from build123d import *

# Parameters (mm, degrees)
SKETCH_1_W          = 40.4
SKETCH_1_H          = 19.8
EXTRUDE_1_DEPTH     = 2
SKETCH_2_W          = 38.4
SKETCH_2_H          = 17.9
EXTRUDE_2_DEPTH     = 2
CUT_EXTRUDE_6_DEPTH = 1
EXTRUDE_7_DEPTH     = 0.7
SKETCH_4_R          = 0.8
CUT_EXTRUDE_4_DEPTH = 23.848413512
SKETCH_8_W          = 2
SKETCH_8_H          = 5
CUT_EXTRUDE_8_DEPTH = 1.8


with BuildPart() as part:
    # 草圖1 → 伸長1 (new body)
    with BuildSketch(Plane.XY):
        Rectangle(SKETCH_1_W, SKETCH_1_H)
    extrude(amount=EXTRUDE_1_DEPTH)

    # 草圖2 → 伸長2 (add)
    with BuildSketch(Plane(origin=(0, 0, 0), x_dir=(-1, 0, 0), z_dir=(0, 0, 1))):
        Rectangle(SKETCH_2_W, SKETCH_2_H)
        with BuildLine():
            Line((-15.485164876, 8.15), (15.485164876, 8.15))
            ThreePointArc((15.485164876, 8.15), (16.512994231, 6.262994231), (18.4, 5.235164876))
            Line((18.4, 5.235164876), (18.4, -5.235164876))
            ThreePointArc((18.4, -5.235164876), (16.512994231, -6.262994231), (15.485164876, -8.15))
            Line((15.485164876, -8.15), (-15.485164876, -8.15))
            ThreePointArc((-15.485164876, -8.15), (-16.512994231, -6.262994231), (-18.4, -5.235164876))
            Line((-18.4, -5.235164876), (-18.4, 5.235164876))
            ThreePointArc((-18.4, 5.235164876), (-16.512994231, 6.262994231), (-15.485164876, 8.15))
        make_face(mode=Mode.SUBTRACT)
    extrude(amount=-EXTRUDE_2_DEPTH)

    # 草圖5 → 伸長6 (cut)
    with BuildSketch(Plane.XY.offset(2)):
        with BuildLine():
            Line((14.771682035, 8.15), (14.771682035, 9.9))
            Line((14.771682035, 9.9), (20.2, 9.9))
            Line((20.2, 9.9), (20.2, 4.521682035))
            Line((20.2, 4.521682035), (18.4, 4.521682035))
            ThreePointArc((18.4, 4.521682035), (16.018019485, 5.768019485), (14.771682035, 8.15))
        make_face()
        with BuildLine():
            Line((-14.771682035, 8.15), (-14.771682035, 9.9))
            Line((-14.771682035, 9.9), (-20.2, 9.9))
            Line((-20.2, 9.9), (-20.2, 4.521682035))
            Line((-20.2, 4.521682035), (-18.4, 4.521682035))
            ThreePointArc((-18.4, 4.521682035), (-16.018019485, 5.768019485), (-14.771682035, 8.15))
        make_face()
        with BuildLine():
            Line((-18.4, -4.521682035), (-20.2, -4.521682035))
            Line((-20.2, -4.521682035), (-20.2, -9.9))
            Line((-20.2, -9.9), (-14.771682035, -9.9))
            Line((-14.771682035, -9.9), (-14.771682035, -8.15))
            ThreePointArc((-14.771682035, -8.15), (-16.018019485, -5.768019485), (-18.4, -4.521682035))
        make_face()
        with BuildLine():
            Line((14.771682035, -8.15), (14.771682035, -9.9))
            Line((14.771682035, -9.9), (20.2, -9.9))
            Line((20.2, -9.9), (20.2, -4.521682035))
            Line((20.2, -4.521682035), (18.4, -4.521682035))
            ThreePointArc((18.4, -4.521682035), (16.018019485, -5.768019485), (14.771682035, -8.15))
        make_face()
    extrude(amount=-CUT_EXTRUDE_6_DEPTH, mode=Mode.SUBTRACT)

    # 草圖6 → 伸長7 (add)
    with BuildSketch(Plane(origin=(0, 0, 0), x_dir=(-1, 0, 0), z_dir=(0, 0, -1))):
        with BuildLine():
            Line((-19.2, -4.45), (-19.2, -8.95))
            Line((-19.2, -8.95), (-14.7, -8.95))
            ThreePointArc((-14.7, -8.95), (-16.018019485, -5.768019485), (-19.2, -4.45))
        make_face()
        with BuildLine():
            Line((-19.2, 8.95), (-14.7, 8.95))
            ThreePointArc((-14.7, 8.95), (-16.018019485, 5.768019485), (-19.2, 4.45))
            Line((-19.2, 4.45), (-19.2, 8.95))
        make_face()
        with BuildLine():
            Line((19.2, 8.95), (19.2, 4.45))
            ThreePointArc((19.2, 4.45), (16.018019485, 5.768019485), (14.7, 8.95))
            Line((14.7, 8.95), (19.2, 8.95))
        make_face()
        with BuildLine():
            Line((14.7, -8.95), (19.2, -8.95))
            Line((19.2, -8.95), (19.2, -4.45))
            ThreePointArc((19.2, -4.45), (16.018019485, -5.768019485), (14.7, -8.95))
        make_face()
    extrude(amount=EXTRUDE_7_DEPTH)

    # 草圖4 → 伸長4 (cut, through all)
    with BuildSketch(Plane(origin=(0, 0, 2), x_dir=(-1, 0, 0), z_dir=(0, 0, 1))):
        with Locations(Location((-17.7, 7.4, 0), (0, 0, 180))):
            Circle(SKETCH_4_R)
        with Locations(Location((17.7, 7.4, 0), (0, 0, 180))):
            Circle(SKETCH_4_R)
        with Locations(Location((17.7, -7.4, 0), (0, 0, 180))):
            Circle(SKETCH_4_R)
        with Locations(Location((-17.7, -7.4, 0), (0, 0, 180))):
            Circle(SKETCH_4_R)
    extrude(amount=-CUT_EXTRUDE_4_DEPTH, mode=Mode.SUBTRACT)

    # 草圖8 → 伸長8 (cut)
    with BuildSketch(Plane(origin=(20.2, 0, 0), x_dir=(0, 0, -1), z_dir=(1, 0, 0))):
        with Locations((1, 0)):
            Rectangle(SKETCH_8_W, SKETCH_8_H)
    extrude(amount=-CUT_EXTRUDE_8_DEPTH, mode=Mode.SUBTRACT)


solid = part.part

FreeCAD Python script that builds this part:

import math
import FreeCAD as App
import Part
import Sketcher
Q = App.Units.Quantity

doc = App.newDocument("Part")
body = doc.addObject("PartDesign::Body", "Body")

# Sketch on XY plane
sketch1 = body.newObject("Sketcher::SketchObject", "Sketch")
sketch1.AttachmentSupport = (doc.getObject("XY_Plane"), [""])
sketch1.MapMode = "FlatFace"
sketch1.addGeometry(Part.LineSegment(App.Vector(-20, 10, 0), App.Vector(-20, -10, 0)), False)
sketch1.addGeometry(Part.LineSegment(App.Vector(-20, -10, 0), App.Vector(20, -10, 0)), False)
sketch1.addGeometry(Part.LineSegment(App.Vector(20, -10, 0), App.Vector(20, 10, 0)), False)
sketch1.addGeometry(Part.LineSegment(App.Vector(20, 10, 0), App.Vector(-20, 10, 0)), False)
sketch1.addConstraint(Sketcher.Constraint("Coincident", 0, 2, 1, 1))
sketch1.addConstraint(Sketcher.Constraint("Coincident", 1, 2, 2, 1))
sketch1.addConstraint(Sketcher.Constraint("Coincident", 2, 2, 3, 1))
sketch1.addConstraint(Sketcher.Constraint("Coincident", 3, 2, 0, 1))
sketch1.addConstraint(Sketcher.Constraint("Vertical", 0))
sketch1.addConstraint(Sketcher.Constraint("Horizontal", 1))
sketch1.addConstraint(Sketcher.Constraint("Vertical", 2))
sketch1.addConstraint(Sketcher.Constraint("Horizontal", 3))
sketch1.addConstraint(Sketcher.Constraint("Symmetric", 0, 2, 2, 2, -1, 1))
sketch1.addConstraint(Sketcher.Constraint("DistanceX", 1, 1, 1, 2, Q("40.4 mm")))
sketch1.addConstraint(Sketcher.Constraint("DistanceY", 0, 2, 0, 1, Q("19.8 mm")))
pad1 = body.newObject("PartDesign::Pad", "Pad")
pad1.Profile = sketch1
pad1.Length = 2

# Sketch on XY plane
sketch2 = body.newObject("Sketcher::SketchObject", "Sketch001")
sketch2.AttachmentSupport = (doc.getObject("XY_Plane"), [""])
sketch2.MapMode = "FlatFace"
sketch2.addGeometry(Part.LineSegment(App.Vector(19.2, -8.9, 0), App.Vector(19.2, 8.9, 0)), False)
sketch2.addGeometry(Part.LineSegment(App.Vector(19.2, 8.9, 0), App.Vector(-19.2, 8.9, 0)), False)
sketch2.addGeometry(Part.LineSegment(App.Vector(-19.2, 8.9, 0), App.Vector(-19.2, -8.9, 0)), False)
sketch2.addGeometry(Part.LineSegment(App.Vector(-19.2, -8.9, 0), App.Vector(19.2, -8.9, 0)), False)
sketch2.addGeometry(Part.ArcOfCircle(Part.Circle(App.Vector(19.2, -8.9, 0), App.Vector(0, 0, 1), 3.8), math.radians(102), math.radians(168)), False)
sketch2.addGeometry(Part.LineSegment(App.Vector(15.5, -8.2, 0), App.Vector(-15.5, -8.2, 0)), False)
sketch2.addGeometry(Part.ArcOfCircle(Part.Circle(App.Vector(-19.2, -8.9, 0), App.Vector(0, 0, 1), 3.8), math.radians(12), math.radians(78)), False)
sketch2.addGeometry(Part.LineSegment(App.Vector(-18.4, -5.2, 0), App.Vector(-18.4, 5.2, 0)), False)
sketch2.addGeometry(Part.ArcOfCircle(Part.Circle(App.Vector(-19.2, 8.9, 0), App.Vector(0, 0, 1), 3.8), math.radians(-78), math.radians(-12)), False)
sketch2.addGeometry(Part.LineSegment(App.Vector(-15.5, 8.2, 0), App.Vector(15.5, 8.2, 0)), False)
sketch2.addGeometry(Part.ArcOfCircle(Part.Circle(App.Vector(19.2, 8.9, 0), App.Vector(0, 0, 1), 3.8), math.radians(-168), math.radians(-102)), False)
sketch2.addGeometry(Part.LineSegment(App.Vector(18.4, 5.2, 0), App.Vector(18.4, -5.2, 0)), False)
sketch2.addConstraint(Sketcher.Constraint("Coincident", 0, 2, 1, 1))
sketch2.addConstraint(Sketcher.Constraint("Coincident", 1, 2, 2, 1))
sketch2.addConstraint(Sketcher.Constraint("Coincident", 2, 2, 3, 1))
sketch2.addConstraint(Sketcher.Constraint("Coincident", 3, 2, 0, 1))
sketch2.addConstraint(Sketcher.Constraint("Coincident", 4, 2, 5, 1))
sketch2.addConstraint(Sketcher.Constraint("Coincident", 5, 2, 6, 1))
sketch2.addConstraint(Sketcher.Constraint("Coincident", 6, 2, 7, 1))
sketch2.addConstraint(Sketcher.Constraint("Coincident", 7, 2, 8, 1))
sketch2.addConstraint(Sketcher.Constraint("Coincident", 8, 2, 9, 1))
sketch2.addConstraint(Sketcher.Constraint("Coincident", 9, 2, 10, 1))
sketch2.addConstraint(Sketcher.Constraint("Coincident", 10, 2, 11, 1))
sketch2.addConstraint(Sketcher.Constraint("Coincident", 11, 2, 4, 1))
sketch2.addConstraint(Sketcher.Constraint("Vertical", 0))
sketch2.addConstraint(Sketcher.Constraint("Horizontal", 1))
sketch2.addConstraint(Sketcher.Constraint("Vertical", 2))
sketch2.addConstraint(Sketcher.Constraint("Horizontal", 3))
sketch2.addConstraint(Sketcher.Constraint("Horizontal", 5))
sketch2.addConstraint(Sketcher.Constraint("Vertical", 7))
sketch2.addConstraint(Sketcher.Constraint("Horizontal", 9))
sketch2.addConstraint(Sketcher.Constraint("Vertical", 11))
sketch2.addConstraint(Sketcher.Constraint("Coincident", 0, 2, 10, 3))
sketch2.addConstraint(Sketcher.Constraint("Coincident", 1, 2, 8, 3))
sketch2.addConstraint(Sketcher.Constraint("Coincident", 2, 2, 6, 3))
sketch2.addConstraint(Sketcher.Constraint("Coincident", 3, 2, 4, 3))
sketch2.addConstraint(Sketcher.Constraint("Equal", 4, 6))
sketch2.addConstraint(Sketcher.Constraint("Equal", 6, 8))
sketch2.addConstraint(Sketcher.Constraint("Equal", 8, 10))
sketch2.addConstraint(Sketcher.Constraint("Symmetric", 4, 3, 8, 3, -1, 1))
sketch2.addConstraint(Sketcher.Constraint("Horizontal", 7, 2, 10, 2))
sketch2.addConstraint(Sketcher.Constraint("Vertical", 5, 2, 8, 2))
sketch2.addConstraint(Sketcher.Constraint("Radius", 4, Q("3.8 mm")))
sketch2.addConstraint(Sketcher.Constraint("DistanceX", 1, 2, 1, 1, Q("38.4 mm")))
sketch2.addConstraint(Sketcher.Constraint("DistanceY", 0, 1, 0, 2, Q("17.9 mm")))
sketch2.addConstraint(Sketcher.Constraint("DistanceX", 6, 2, -1, 1, Q("18.4 mm")))
sketch2.addConstraint(Sketcher.Constraint("DistanceY", 4, 3, 4, 2, Q("0.8 mm")))
pad2 = body.newObject("PartDesign::Pad", "Pad001")
pad2.Profile = sketch2
pad2.Length = 2
pad2.Reversed = True

# Sketch on XY plane
sketch3 = body.newObject("Sketcher::SketchObject", "Sketch002")
sketch3.AttachmentSupport = (doc.getObject("XY_Plane"), [""])
sketch3.MapMode = "FlatFace"
sketch3.AttachmentOffset = App.Placement(App.Vector(0, 0, 2), App.Rotation())
sketch3.addGeometry(Part.LineSegment(App.Vector(14.8, 9.9, 0), App.Vector(14.8, 8.2, 0)), False)
sketch3.addGeometry(Part.ArcOfCircle(Part.Circle(App.Vector(19.2, 9, 0), App.Vector(0, 0, 1), 4.5), math.radians(-170), math.radians(-100)), False)
sketch3.addGeometry(Part.LineSegment(App.Vector(18.4, 4.5, 0), App.Vector(20.2, 4.5, 0)), False)
sketch3.addGeometry(Part.LineSegment(App.Vector(20.2, 4.5, 0), App.Vector(20.2, 9.9, 0)), False)
sketch3.addGeometry(Part.LineSegment(App.Vector(20.2, 9.9, 0), App.Vector(14.8, 9.9, 0)), False)
sketch3.addGeometry(Part.LineSegment(App.Vector(-14.8, 8.2, 0), App.Vector(-14.8, 9.9, 0)), False)
sketch3.addGeometry(Part.LineSegment(App.Vector(-14.8, 9.9, 0), App.Vector(-20.2, 9.9, 0)), False)
sketch3.addGeometry(Part.LineSegment(App.Vector(-20.2, 9.9, 0), App.Vector(-20.2, 4.5, 0)), False)
sketch3.addGeometry(Part.LineSegment(App.Vector(-20.2, 4.5, 0), App.Vector(-18.4, 4.5, 0)), False)
sketch3.addGeometry(Part.ArcOfCircle(Part.Circle(App.Vector(-19.2, 9, 0), App.Vector(0, 0, 1), 4.5), math.radians(-80), math.radians(-10)), False)
sketch3.addGeometry(Part.LineSegment(App.Vector(-18.4, -4.5, 0), App.Vector(-20.2, -4.5, 0)), False)
sketch3.addGeometry(Part.LineSegment(App.Vector(-20.2, -4.5, 0), App.Vector(-20.2, -9.9, 0)), False)
sketch3.addGeometry(Part.LineSegment(App.Vector(-20.2, -9.9, 0), App.Vector(-14.8, -9.9, 0)), False)
sketch3.addGeometry(Part.LineSegment(App.Vector(-14.8, -9.9, 0), App.Vector(-14.8, -8.2, 0)), False)
sketch3.addGeometry(Part.ArcOfCircle(Part.Circle(App.Vector(-19.2, -9, 0), App.Vector(0, 0, 1), 4.5), math.radians(10), math.radians(80)), False)
sketch3.addGeometry(Part.LineSegment(App.Vector(14.8, -8.2, 0), App.Vector(14.8, -9.9, 0)), False)
sketch3.addGeometry(Part.LineSegment(App.Vector(14.8, -9.9, 0), App.Vector(20.2, -9.9, 0)), False)
sketch3.addGeometry(Part.LineSegment(App.Vector(20.2, -9.9, 0), App.Vector(20.2, -4.5, 0)), False)
sketch3.addGeometry(Part.LineSegment(App.Vector(20.2, -4.5, 0), App.Vector(18.4, -4.5, 0)), False)
sketch3.addGeometry(Part.ArcOfCircle(Part.Circle(App.Vector(19.2, -9, 0), App.Vector(0, 0, 1), 4.5), math.radians(100), math.radians(170)), False)
sketch3.addConstraint(Sketcher.Constraint("Coincident", 0, 2, 1, 1))
sketch3.addConstraint(Sketcher.Constraint("Coincident", 1, 2, 2, 1))
sketch3.addConstraint(Sketcher.Constraint("Coincident", 2, 2, 3, 1))
sketch3.addConstraint(Sketcher.Constraint("Coincident", 3, 2, 4, 1))
sketch3.addConstraint(Sketcher.Constraint("Coincident", 4, 2, 0, 1))
sketch3.addConstraint(Sketcher.Constraint("Coincident", 5, 2, 6, 1))
sketch3.addConstraint(Sketcher.Constraint("Coincident", 6, 2, 7, 1))
sketch3.addConstraint(Sketcher.Constraint("Coincident", 7, 2, 8, 1))
sketch3.addConstraint(Sketcher.Constraint("Coincident", 8, 2, 9, 1))
sketch3.addConstraint(Sketcher.Constraint("Coincident", 9, 2, 5, 1))
sketch3.addConstraint(Sketcher.Constraint("Coincident", 10, 2, 11, 1))
sketch3.addConstraint(Sketcher.Constraint("Coincident", 11, 2, 12, 1))
sketch3.addConstraint(Sketcher.Constraint("Coincident", 12, 2, 13, 1))
sketch3.addConstraint(Sketcher.Constraint("Coincident", 13, 2, 14, 1))
sketch3.addConstraint(Sketcher.Constraint("Coincident", 14, 2, 10, 1))
sketch3.addConstraint(Sketcher.Constraint("Coincident", 15, 2, 16, 1))
sketch3.addConstraint(Sketcher.Constraint("Coincident", 16, 2, 17, 1))
sketch3.addConstraint(Sketcher.Constraint("Coincident", 17, 2, 18, 1))
sketch3.addConstraint(Sketcher.Constraint("Coincident", 18, 2, 19, 1))
sketch3.addConstraint(Sketcher.Constraint("Coincident", 19, 2, 15, 1))
sketch3.addConstraint(Sketcher.Constraint("Vertical", 0))
sketch3.addConstraint(Sketcher.Constraint("Horizontal", 2))
sketch3.addConstraint(Sketcher.Constraint("Vertical", 3))
sketch3.addConstraint(Sketcher.Constraint("Horizontal", 4))
sketch3.addConstraint(Sketcher.Constraint("Vertical", 5))
sketch3.addConstraint(Sketcher.Constraint("Horizontal", 6))
sketch3.addConstraint(Sketcher.Constraint("Vertical", 7))
sketch3.addConstraint(Sketcher.Constraint("Horizontal", 8))
sketch3.addConstraint(Sketcher.Constraint("Horizontal", 10))
sketch3.addConstraint(Sketcher.Constraint("Vertical", 11))
sketch3.addConstraint(Sketcher.Constraint("Horizontal", 12))
sketch3.addConstraint(Sketcher.Constraint("Vertical", 13))
sketch3.addConstraint(Sketcher.Constraint("Vertical", 15))
sketch3.addConstraint(Sketcher.Constraint("Horizontal", 16))
sketch3.addConstraint(Sketcher.Constraint("Vertical", 17))
sketch3.addConstraint(Sketcher.Constraint("Horizontal", 18))
sketch3.addConstraint(Sketcher.Constraint("Equal", 1, 9))
sketch3.addConstraint(Sketcher.Constraint("Equal", 9, 14))
sketch3.addConstraint(Sketcher.Constraint("Equal", 14, 19))
sketch3.addConstraint(Sketcher.Constraint("Symmetric", 1, 3, 14, 3, -1, 1))
sketch3.addConstraint(Sketcher.Constraint("Symmetric", 9, 3, 19, 3, -1, 1))
sketch3.addConstraint(Sketcher.Constraint("Symmetric", 2, 2, 10, 2, -1, 1))
sketch3.addConstraint(Sketcher.Constraint("Symmetric", 4, 2, 12, 2, -1, 1))
sketch3.addConstraint(Sketcher.Constraint("Symmetric", 5, 2, 15, 2, -1, 1))
sketch3.addConstraint(Sketcher.Constraint("Symmetric", 7, 2, 17, 2, -1, 1))
sketch3.addConstraint(Sketcher.Constraint("Symmetric", 1, 3, 9, 3, -2))
sketch3.addConstraint(Sketcher.Constraint("Symmetric", 4, 2, 5, 2, -2))
sketch3.addConstraint(Sketcher.Constraint("Symmetric", 2, 2, 7, 2, -2))
sketch3.addConstraint(Sketcher.Constraint("Radius", 1, Q("4.5 mm")))
sketch3.addConstraint(Sketcher.Constraint("DistanceX", 2, 1, 2, 2, Q("1.8 mm")))
sketch3.addConstraint(Sketcher.Constraint("DistanceX", 1, 3, 2, 2, Q("1 mm")))
sketch3.addConstraint(Sketcher.Constraint("DistanceY", 0, 2, 0, 1, Q("1.75 mm")))
sketch3.addConstraint(Sketcher.Constraint("DistanceX", -1, 1, 1, 3, Q("19.2 mm")))
sketch3.addConstraint(Sketcher.Constraint("DistanceY", -1, 1, 3, 2, Q("9.9 mm")))
sketch3.addConstraint(Sketcher.Constraint("DistanceY", 14, 3, 9, 3, Q("17.9 mm")))
pocket1 = body.newObject("PartDesign::Pocket", "Pocket")
pocket1.Profile = sketch3
pocket1.Length = 1

# Sketch on XY plane
sketch4 = body.newObject("Sketcher::SketchObject", "Sketch003")
sketch4.AttachmentSupport = (doc.getObject("XY_Plane"), [""])
sketch4.MapMode = "FlatFace"
sketch4.addGeometry(Part.LineSegment(App.Vector(19.2, -4.5, 0), App.Vector(19.2, -8.9, 0)), False)
sketch4.addGeometry(Part.LineSegment(App.Vector(19.2, -8.9, 0), App.Vector(14.7, -8.9, 0)), False)
sketch4.addGeometry(Part.ArcOfCircle(Part.Circle(App.Vector(19.2, -9, 0), App.Vector(0, 0, 1), 4.5), math.radians(90), math.radians(180)), False)
sketch4.addGeometry(Part.LineSegment(App.Vector(14.7, 8.9, 0), App.Vector(19.2, 8.9, 0)), False)
sketch4.addGeometry(Part.LineSegment(App.Vector(19.2, 8.9, 0), App.Vector(19.2, 4.5, 0)), False)
sketch4.addGeometry(Part.ArcOfCircle(Part.Circle(App.Vector(19.2, 9, 0), App.Vector(0, 0, 1), 4.5), math.radians(-180), math.radians(-90)), False)
sketch4.addGeometry(Part.LineSegment(App.Vector(-19.2, 4.5, 0), App.Vector(-19.2, 8.9, 0)), False)
sketch4.addGeometry(Part.LineSegment(App.Vector(-19.2, 8.9, 0), App.Vector(-14.7, 8.9, 0)), False)
sketch4.addGeometry(Part.ArcOfCircle(Part.Circle(App.Vector(-19.2, 9, 0), App.Vector(0, 0, 1), 4.5), math.radians(-90), math.radians(0)), False)
sketch4.addGeometry(Part.LineSegment(App.Vector(-14.7, -8.9, 0), App.Vector(-19.2, -8.9, 0)), False)
sketch4.addGeometry(Part.LineSegment(App.Vector(-19.2, -8.9, 0), App.Vector(-19.2, -4.5, 0)), False)
sketch4.addGeometry(Part.ArcOfCircle(Part.Circle(App.Vector(-19.2, -9, 0), App.Vector(0, 0, 1), 4.5), math.radians(0), math.radians(90)), False)
sketch4.addConstraint(Sketcher.Constraint("Coincident", 0, 2, 1, 1))
sketch4.addConstraint(Sketcher.Constraint("Coincident", 1, 2, 2, 2))
sketch4.addConstraint(Sketcher.Constraint("Coincident", 2, 1, 0, 1))
sketch4.addConstraint(Sketcher.Constraint("Coincident", 3, 2, 4, 1))
sketch4.addConstraint(Sketcher.Constraint("Coincident", 4, 2, 5, 2))
sketch4.addConstraint(Sketcher.Constraint("Coincident", 5, 1, 3, 1))
sketch4.addConstraint(Sketcher.Constraint("Coincident", 6, 2, 7, 1))
sketch4.addConstraint(Sketcher.Constraint("Coincident", 7, 2, 8, 2))
sketch4.addConstraint(Sketcher.Constraint("Coincident", 8, 1, 6, 1))
sketch4.addConstraint(Sketcher.Constraint("Coincident", 9, 2, 10, 1))
sketch4.addConstraint(Sketcher.Constraint("Coincident", 10, 2, 11, 2))
sketch4.addConstraint(Sketcher.Constraint("Coincident", 11, 1, 9, 1))
sketch4.addConstraint(Sketcher.Constraint("Vertical", 0))
sketch4.addConstraint(Sketcher.Constraint("Horizontal", 1))
sketch4.addConstraint(Sketcher.Constraint("Horizontal", 3))
sketch4.addConstraint(Sketcher.Constraint("Vertical", 4))
sketch4.addConstraint(Sketcher.Constraint("Vertical", 6))
sketch4.addConstraint(Sketcher.Constraint("Horizontal", 7))
sketch4.addConstraint(Sketcher.Constraint("Horizontal", 9))
sketch4.addConstraint(Sketcher.Constraint("Vertical", 10))
sketch4.addConstraint(Sketcher.Constraint("Coincident", 0, 2, 2, 3))
sketch4.addConstraint(Sketcher.Constraint("Coincident", 3, 2, 5, 3))
sketch4.addConstraint(Sketcher.Constraint("Coincident", 6, 2, 8, 3))
sketch4.addConstraint(Sketcher.Constraint("Coincident", 9, 2, 11, 3))
sketch4.addConstraint(Sketcher.Constraint("Equal", 2, 5))
sketch4.addConstraint(Sketcher.Constraint("Equal", 5, 8))
sketch4.addConstraint(Sketcher.Constraint("Equal", 8, 11))
sketch4.addConstraint(Sketcher.Constraint("Symmetric", 2, 3, 8, 3, -1, 1))
sketch4.addConstraint(Sketcher.Constraint("Symmetric", 5, 3, 11, 3, -1, 1))
sketch4.addConstraint(Sketcher.Constraint("Symmetric", 5, 3, 8, 3, -2))
sketch4.addConstraint(Sketcher.Constraint("Radius", 2, Q("4.5 mm")))
sketch4.addConstraint(Sketcher.Constraint("DistanceX", -1, 1, 2, 3, Q("19.2 mm")))
sketch4.addConstraint(Sketcher.Constraint("DistanceY", 2, 3, 5, 3, Q("17.9 mm")))
pad3 = body.newObject("PartDesign::Pad", "Pad002")
pad3.Profile = sketch4
pad3.Length = 0.7
pad3.Reversed = True

# Sketch on XY plane
sketch5 = body.newObject("Sketcher::SketchObject", "Sketch004")
sketch5.AttachmentSupport = (doc.getObject("XY_Plane"), [""])
sketch5.MapMode = "FlatFace"
sketch5.AttachmentOffset = App.Placement(App.Vector(0, 0, 2), App.Rotation())
sketch5.addGeometry(Part.Circle(App.Vector(17.7, -7.4, 0), App.Vector(0, 0, 1), 0.8), False)
sketch5.addGeometry(Part.Circle(App.Vector(-17.7, -7.4, 0), App.Vector(0, 0, 1), 0.8), False)
sketch5.addGeometry(Part.Circle(App.Vector(-17.7, 7.4, 0), App.Vector(0, 0, 1), 0.8), False)
sketch5.addGeometry(Part.Circle(App.Vector(17.7, 7.4, 0), App.Vector(0, 0, 1), 0.8), False)
sketch5.addConstraint(Sketcher.Constraint("Equal", 0, 1))
sketch5.addConstraint(Sketcher.Constraint("Equal", 1, 2))
sketch5.addConstraint(Sketcher.Constraint("Equal", 2, 3))
sketch5.addConstraint(Sketcher.Constraint("Symmetric", 0, 3, 2, 3, -1, 1))
sketch5.addConstraint(Sketcher.Constraint("Symmetric", 1, 3, 3, 3, -1, 1))
sketch5.addConstraint(Sketcher.Constraint("Symmetric", 0, 3, 1, 3, -2))
sketch5.addConstraint(Sketcher.Constraint("Diameter", 0, Q("1.6 mm")))
sketch5.addConstraint(Sketcher.Constraint("DistanceX", -1, 1, 0, 3, Q("17.7 mm")))
sketch5.addConstraint(Sketcher.Constraint("DistanceY", 0, 3, -1, 1, Q("7.4 mm")))
pocket2 = body.newObject("PartDesign::Pocket", "Pocket001")
pocket2.Profile = sketch5
pocket2.Type = "ThroughAll"

# Sketch on YZ plane
sketch6 = body.newObject("Sketcher::SketchObject", "Sketch005")
sketch6.AttachmentSupport = (doc.getObject("YZ_Plane"), [""])
sketch6.MapMode = "FlatFace"
sketch6.AttachmentOffset = App.Placement(App.Vector(0, 0, 20.2), App.Rotation())
sketch6.addGeometry(Part.LineSegment(App.Vector(2.5, 0, 0), App.Vector(-2.5, 0, 0)), False)
sketch6.addGeometry(Part.LineSegment(App.Vector(-2.5, 0, 0), App.Vector(-2.5, -2, 0)), False)
sketch6.addGeometry(Part.LineSegment(App.Vector(-2.5, -2, 0), App.Vector(2.5, -2, 0)), False)
sketch6.addGeometry(Part.LineSegment(App.Vector(2.5, -2, 0), App.Vector(2.5, 0, 0)), False)
sketch6.addConstraint(Sketcher.Constraint("Coincident", 0, 2, 1, 1))
sketch6.addConstraint(Sketcher.Constraint("Coincident", 1, 2, 2, 1))
sketch6.addConstraint(Sketcher.Constraint("Coincident", 2, 2, 3, 1))
sketch6.addConstraint(Sketcher.Constraint("Coincident", 3, 2, 0, 1))
sketch6.addConstraint(Sketcher.Constraint("Horizontal", 0))
sketch6.addConstraint(Sketcher.Constraint("Vertical", 1))
sketch6.addConstraint(Sketcher.Constraint("Horizontal", 2))
sketch6.addConstraint(Sketcher.Constraint("Vertical", 3))
sketch6.addConstraint(Sketcher.Constraint("Symmetric", 0, 2, 3, 2, -1, 1))
sketch6.addConstraint(Sketcher.Constraint("DistanceX", 0, 2, 0, 1, Q("5 mm")))
sketch6.addConstraint(Sketcher.Constraint("DistanceY", 1, 2, 1, 1, Q("2 mm")))
pocket3 = body.newObject("PartDesign::Pocket", "Pocket002")
pocket3.Profile = sketch6
pocket3.Length = 1.8

doc.recompute()
